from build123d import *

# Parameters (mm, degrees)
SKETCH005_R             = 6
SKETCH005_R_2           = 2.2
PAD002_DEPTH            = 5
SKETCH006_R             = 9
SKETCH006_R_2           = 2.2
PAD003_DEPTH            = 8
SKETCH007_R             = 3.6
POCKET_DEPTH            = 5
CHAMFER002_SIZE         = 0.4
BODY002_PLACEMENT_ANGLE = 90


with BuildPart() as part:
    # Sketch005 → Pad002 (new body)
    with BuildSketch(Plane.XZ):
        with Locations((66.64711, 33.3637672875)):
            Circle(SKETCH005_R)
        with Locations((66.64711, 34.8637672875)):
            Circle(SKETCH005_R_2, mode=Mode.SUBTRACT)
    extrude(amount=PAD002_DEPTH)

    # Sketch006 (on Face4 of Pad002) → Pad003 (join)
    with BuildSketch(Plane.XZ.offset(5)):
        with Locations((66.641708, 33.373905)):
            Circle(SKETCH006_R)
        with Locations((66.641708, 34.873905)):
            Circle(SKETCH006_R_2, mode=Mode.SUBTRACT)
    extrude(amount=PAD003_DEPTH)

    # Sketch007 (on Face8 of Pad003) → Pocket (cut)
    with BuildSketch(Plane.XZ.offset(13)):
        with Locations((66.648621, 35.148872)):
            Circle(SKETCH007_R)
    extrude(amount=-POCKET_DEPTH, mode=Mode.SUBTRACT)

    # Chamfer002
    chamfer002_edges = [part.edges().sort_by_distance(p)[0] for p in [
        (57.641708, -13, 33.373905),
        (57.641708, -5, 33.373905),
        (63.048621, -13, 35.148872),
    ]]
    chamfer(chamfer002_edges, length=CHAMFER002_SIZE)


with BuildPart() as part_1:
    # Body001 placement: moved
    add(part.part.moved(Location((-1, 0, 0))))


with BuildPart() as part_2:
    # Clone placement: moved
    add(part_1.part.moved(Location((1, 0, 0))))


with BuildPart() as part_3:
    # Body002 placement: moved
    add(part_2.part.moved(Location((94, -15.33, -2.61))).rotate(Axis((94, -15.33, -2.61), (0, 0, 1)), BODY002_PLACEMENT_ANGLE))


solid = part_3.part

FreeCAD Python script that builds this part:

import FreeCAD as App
import Part
import Sketcher


def edges_at(feature, points):
    """Names of the edges that pass closest to the given points."""
    edges = feature.Shape.Edges
    near = lambda p: min(range(len(edges)), key=lambda i: edges[i].distToShape(Part.Vertex(*p))[0])
    return sorted({f"Edge{near(p) + 1}" for p in points})

doc = App.newDocument("Part")
body = doc.addObject("PartDesign::Body", "Body")

sketch1 = doc.addObject("Sketcher::SketchObject", "Sketch")
body.addObject(sketch1)
sketch1.AttachmentSupport = (doc.XZ_Plane, [""])
sketch1.MapMode = "FlatFace"
sketch1.addGeometry([
    Part.Circle(App.Vector(66.64711, 33.363767, 0), App.Vector(0, 0, 1), 6),
    Part.Circle(App.Vector(66.64711, 34.863767, 0), App.Vector(0, 0, 1), 2.2),
], False)
sketch1.addConstraint([
    Sketcher.Constraint("Vertical", 0, 3, 1, 3),
    Sketcher.Constraint("Diameter", 0, 12.0),
    Sketcher.Constraint("Diameter", 1, 4.4),
    Sketcher.Constraint("DistanceY", 0, 3, 1, 3, 1.5),
    Sketcher.Constraint("DistanceX", -1, 1, 0, 3, 66.64711),
    Sketcher.Constraint("DistanceY", -1, 1, 0, 3, 33.363767),
])
pad1 = doc.addObject("PartDesign::Pad", "Pad")
body.addObject(pad1)
pad1.Profile = sketch1
pad1.Length = 5

sketch2 = doc.addObject("Sketcher::SketchObject", "Sketch001")
body.addObject(sketch2)
sketch2.AttachmentSupport = (doc.XZ_Plane, [""])
sketch2.MapMode = "FlatFace"
sketch2.AttachmentOffset = App.Placement(App.Vector(0, 0, 5), App.Rotation())
sketch2.addGeometry([
    Part.Circle(App.Vector(66.641708, 33.373905, 0), App.Vector(0, 0, 1), 9),
    Part.Circle(App.Vector(66.641708, 34.873905, 0), App.Vector(0, 0, 1), 2.2),
], False)
sketch2.addConstraint([
    Sketcher.Constraint("Vertical", 0, 3, 1, 3),
    Sketcher.Constraint("Diameter", 0, 18.0),
    Sketcher.Constraint("Diameter", 1, 4.4),
    Sketcher.Constraint("DistanceY", 0, 3, 1, 3, 1.5),
    Sketcher.Constraint("DistanceX", -1, 1, 0, 3, 66.641708),
    Sketcher.Constraint("DistanceY", -1, 1, 0, 3, 33.373905),
])
pad2 = doc.addObject("PartDesign::Pad", "Pad001")
body.addObject(pad2)
pad2.Profile = sketch2
pad2.Length = 8

sketch3 = doc.addObject("Sketcher::SketchObject", "Sketch002")
body.addObject(sketch3)
sketch3.AttachmentSupport = (doc.XZ_Plane, [""])
sketch3.MapMode = "FlatFace"
sketch3.AttachmentOffset = App.Placement(App.Vector(0, 0, 13), App.Rotation())
sketch3.addGeometry(Part.Circle(App.Vector(66.648621, 35.148872, 0), App.Vector(0, 0, 1), 3.6), False)
sketch3.addConstraint([
    Sketcher.Constraint("Diameter", 0, 7.2),
    Sketcher.Constraint("DistanceX", -1, 1, 0, 3, 66.648621),
    Sketcher.Constraint("DistanceY", -1, 1, 0, 3, 35.148872),
])
pocket1 = doc.addObject("PartDesign::Pocket", "Pocket")
body.addObject(pocket1)
pocket1.Profile = sketch3
pocket1.Length = 5
doc.recompute()

chamfer = doc.addObject("PartDesign::Chamfer", "Chamfer")
body.addObject(chamfer)
chamfer.Base = (pocket1, edges_at(pocket1, [(57.642, -13, 33.374), (57.642, -5, 33.374), (63.049, -13, 35.149)]))
chamfer.Size = 0.4
body2 = doc.addObject("PartDesign::Body", "Body001")
doc.recompute()

body.Placement = App.Placement(App.Vector(-1, 0, 0), App.Rotation(App.Vector(0, 0, 1), 0))
boolean = doc.addObject("PartDesign::Boolean", "Boolean")
body2.addObject(boolean)
boolean.Type = "Fuse"
boolean.addObjects([body])
body3 = doc.addObject("PartDesign::Body", "Body002")
doc.recompute()

body2.Placement = App.Placement(App.Vector(1, 0, 0), App.Rotation(App.Vector(0, 0, 1), 0))
boolean2 = doc.addObject("PartDesign::Boolean", "Boolean001")
body3.addObject(boolean2)
boolean2.Type = "Fuse"
boolean2.addObjects([body2])
body4 = doc.addObject("PartDesign::Body", "Body003")
doc.recompute()

body3.Placement = App.Placement(App.Vector(94, -15.33, -2.61), App.Rotation(App.Vector(0, 0, 1), 90))
boolean3 = doc.addObject("PartDesign::Boolean", "Boolean002")
body4.addObject(boolean3)
boolean3.Type = "Fuse"
boolean3.addObjects([body3])

doc.recompute()
